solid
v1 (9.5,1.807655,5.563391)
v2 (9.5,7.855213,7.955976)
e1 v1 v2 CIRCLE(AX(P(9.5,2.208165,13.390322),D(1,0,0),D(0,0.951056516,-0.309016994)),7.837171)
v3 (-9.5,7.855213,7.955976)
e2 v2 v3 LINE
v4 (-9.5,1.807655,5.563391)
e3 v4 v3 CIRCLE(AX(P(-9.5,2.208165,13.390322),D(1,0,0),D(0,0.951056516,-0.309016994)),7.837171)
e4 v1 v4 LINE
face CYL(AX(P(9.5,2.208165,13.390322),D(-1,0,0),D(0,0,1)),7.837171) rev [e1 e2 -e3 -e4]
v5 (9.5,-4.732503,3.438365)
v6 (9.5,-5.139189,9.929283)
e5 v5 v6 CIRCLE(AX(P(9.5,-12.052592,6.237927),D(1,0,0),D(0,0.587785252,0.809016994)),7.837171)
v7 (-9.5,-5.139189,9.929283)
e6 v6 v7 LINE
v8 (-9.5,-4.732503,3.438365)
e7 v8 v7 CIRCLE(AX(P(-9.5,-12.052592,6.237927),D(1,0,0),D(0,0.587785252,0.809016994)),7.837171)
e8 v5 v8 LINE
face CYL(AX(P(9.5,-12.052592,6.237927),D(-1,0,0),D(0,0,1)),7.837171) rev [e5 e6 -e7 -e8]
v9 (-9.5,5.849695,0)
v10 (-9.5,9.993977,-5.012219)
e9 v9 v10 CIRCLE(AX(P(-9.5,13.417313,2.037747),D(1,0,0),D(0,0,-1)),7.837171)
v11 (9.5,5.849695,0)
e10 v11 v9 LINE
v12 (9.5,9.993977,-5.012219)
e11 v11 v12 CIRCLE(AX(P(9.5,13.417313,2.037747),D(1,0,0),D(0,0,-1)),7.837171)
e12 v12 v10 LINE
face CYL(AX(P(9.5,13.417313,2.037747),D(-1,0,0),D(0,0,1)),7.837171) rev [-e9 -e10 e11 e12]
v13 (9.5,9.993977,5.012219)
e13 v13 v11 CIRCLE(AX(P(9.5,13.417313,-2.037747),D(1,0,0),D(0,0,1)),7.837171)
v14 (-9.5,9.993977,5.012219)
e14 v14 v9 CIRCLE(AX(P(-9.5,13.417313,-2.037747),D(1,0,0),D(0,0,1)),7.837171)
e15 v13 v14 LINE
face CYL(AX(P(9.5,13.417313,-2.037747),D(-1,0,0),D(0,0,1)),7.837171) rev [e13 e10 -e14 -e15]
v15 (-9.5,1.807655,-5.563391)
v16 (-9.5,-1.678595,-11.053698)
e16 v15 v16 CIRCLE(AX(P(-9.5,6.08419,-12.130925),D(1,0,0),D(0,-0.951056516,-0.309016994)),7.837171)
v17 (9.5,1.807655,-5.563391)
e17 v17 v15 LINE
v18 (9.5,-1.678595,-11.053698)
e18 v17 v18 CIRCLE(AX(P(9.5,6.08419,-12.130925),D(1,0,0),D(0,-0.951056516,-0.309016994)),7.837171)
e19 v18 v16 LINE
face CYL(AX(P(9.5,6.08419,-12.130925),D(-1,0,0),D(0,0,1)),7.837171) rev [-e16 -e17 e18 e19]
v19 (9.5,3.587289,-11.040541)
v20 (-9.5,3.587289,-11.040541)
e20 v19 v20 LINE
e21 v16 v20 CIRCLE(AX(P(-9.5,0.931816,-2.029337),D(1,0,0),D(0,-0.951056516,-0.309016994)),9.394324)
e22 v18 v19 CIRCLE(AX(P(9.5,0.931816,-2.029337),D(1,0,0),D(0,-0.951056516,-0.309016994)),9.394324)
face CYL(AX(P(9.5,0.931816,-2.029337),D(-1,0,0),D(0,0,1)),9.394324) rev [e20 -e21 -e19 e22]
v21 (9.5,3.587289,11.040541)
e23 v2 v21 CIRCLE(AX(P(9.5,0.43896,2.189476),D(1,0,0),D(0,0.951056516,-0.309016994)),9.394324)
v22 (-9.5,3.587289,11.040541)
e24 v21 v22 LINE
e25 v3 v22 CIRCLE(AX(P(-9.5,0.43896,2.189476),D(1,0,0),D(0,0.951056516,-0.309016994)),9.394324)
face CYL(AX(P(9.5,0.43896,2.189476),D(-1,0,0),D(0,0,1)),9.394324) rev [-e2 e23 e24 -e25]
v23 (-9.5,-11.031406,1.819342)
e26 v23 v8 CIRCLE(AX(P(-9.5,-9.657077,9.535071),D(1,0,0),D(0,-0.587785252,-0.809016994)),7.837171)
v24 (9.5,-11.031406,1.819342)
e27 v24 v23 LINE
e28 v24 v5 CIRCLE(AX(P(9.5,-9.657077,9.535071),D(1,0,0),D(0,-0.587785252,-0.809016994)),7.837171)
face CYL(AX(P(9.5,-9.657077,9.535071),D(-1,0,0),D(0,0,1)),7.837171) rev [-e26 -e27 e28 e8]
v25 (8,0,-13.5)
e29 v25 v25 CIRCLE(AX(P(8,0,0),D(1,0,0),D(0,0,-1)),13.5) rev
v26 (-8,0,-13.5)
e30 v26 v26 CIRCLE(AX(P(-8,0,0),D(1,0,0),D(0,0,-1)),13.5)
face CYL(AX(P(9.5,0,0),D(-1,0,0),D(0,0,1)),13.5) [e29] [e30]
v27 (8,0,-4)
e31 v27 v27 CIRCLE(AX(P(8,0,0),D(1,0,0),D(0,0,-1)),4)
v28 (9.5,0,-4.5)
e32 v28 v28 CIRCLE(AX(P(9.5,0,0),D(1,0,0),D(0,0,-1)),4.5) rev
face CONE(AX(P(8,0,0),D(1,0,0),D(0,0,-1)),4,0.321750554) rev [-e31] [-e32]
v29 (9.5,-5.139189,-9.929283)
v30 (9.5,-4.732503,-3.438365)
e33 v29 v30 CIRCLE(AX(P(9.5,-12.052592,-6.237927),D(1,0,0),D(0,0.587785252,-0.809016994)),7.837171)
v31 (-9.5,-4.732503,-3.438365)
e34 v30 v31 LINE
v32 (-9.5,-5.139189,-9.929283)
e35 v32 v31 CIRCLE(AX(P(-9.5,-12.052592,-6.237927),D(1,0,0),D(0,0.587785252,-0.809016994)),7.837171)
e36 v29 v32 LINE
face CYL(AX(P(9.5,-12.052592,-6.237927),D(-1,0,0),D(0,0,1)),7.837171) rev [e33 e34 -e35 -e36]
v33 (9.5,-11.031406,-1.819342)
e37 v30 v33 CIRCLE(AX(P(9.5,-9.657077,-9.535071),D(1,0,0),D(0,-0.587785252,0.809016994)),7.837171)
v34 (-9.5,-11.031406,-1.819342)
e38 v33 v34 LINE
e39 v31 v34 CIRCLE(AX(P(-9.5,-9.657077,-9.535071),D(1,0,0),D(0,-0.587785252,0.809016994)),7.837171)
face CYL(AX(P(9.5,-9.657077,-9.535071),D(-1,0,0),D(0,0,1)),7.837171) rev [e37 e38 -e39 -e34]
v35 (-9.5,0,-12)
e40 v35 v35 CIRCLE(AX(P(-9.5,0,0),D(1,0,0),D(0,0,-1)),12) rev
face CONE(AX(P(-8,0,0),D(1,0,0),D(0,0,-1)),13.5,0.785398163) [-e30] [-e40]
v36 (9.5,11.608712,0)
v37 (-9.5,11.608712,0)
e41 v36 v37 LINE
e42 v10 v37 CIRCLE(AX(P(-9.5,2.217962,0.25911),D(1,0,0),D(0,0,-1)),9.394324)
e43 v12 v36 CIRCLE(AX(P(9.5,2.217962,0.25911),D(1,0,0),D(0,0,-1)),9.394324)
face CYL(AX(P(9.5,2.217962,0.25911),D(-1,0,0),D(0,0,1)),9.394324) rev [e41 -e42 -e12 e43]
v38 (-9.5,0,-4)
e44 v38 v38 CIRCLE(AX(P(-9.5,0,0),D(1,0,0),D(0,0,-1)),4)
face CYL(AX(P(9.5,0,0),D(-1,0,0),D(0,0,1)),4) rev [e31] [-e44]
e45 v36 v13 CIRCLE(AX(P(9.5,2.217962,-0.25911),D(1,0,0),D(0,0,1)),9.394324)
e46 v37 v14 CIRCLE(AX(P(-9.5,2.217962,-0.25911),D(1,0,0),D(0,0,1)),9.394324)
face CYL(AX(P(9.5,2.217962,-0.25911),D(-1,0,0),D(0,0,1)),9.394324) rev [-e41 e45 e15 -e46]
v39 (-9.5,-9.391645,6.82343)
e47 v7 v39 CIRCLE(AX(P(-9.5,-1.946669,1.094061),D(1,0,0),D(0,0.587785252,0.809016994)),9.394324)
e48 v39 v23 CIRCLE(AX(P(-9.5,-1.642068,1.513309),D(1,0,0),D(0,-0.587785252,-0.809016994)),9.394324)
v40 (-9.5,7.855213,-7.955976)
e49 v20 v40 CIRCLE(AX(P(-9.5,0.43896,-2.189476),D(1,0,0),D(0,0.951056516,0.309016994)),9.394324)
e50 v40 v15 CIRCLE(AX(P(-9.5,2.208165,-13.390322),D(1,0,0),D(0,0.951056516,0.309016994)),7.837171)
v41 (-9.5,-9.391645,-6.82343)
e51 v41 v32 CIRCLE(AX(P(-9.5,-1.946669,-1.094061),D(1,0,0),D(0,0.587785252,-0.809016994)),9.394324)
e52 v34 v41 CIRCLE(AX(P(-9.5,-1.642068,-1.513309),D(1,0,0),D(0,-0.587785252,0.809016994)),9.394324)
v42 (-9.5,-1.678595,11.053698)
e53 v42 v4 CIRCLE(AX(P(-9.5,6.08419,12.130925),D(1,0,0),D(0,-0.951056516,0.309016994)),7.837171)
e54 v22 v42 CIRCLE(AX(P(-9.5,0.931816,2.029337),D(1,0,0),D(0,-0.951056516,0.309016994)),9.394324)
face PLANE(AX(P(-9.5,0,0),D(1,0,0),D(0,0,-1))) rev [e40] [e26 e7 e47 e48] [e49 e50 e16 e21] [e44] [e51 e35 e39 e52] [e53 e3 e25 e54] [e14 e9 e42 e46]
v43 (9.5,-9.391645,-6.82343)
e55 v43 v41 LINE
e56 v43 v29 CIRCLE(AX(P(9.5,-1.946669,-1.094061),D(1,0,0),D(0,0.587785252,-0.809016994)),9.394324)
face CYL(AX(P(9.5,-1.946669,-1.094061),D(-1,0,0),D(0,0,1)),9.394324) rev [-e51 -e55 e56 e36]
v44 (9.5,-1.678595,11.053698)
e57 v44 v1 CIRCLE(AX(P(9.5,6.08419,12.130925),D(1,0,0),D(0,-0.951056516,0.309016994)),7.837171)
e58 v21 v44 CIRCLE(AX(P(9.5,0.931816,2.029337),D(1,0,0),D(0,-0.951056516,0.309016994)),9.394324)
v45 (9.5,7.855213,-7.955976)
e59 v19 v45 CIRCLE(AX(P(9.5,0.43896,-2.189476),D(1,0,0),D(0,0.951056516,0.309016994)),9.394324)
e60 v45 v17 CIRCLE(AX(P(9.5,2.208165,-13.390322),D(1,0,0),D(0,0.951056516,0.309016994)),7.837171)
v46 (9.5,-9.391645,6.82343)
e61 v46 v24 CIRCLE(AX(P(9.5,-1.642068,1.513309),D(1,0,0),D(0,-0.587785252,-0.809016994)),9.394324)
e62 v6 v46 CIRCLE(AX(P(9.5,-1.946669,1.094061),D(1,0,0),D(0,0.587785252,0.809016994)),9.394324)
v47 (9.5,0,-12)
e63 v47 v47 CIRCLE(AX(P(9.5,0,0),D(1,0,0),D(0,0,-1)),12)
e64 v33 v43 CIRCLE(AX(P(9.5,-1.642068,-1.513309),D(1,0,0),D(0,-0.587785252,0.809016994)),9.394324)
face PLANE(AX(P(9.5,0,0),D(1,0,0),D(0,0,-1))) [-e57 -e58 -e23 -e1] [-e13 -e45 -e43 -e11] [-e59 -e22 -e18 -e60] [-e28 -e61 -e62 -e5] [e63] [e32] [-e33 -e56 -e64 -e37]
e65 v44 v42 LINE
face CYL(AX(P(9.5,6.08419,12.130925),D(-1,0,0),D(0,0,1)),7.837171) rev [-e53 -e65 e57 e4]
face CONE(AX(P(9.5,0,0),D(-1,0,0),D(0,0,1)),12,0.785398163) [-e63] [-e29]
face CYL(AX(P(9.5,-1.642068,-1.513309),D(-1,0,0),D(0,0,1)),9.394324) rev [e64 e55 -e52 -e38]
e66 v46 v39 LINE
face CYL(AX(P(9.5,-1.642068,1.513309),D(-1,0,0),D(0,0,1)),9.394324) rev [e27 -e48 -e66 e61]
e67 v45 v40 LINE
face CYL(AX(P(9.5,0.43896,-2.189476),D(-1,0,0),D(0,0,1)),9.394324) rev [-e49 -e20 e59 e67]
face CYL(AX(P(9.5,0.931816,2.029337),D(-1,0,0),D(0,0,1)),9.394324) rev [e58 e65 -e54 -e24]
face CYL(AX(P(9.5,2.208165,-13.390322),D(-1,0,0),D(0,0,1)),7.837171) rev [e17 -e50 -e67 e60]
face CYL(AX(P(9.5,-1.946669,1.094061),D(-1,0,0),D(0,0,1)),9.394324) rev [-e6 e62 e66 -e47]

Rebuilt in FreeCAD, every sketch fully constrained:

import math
import FreeCAD as App
import Part
import Sketcher
Q = App.Units.Quantity


def edges_at(feature, points):
    """Names of the edges that pass closest to the given points."""
    edges = feature.Shape.Edges
    near = lambda p: min(range(len(edges)), key=lambda i: edges[i].distToShape(Part.Vertex(*p))[0])
    return sorted({f"Edge{near(p) + 1}" for p in points})

doc = App.newDocument("Part")
params = doc.addObject("Spreadsheet::Sheet", "Params")
for row, (alias, value) in enumerate([
    ("sketch1_diameter", "27 mm"),
    ("sketch1_diameter2", "8 mm"),
    ("pad1_length", "19 mm"),
    ("pocket1_length", "44.649736 mm"),
    ("chamfer_size", "1.5 mm"),
    ("chamfer2_size", "0.5 mm"),
    ("chamfer2_size2", "1.5 mm"),
], start=1):
    params.set(f"A{row}", alias)
    params.set(f"B{row}", "=" + value)
    params.setAlias(f"B{row}", alias)

body = doc.addObject("PartDesign::Body", "Body")

sketch1 = doc.addObject("Sketcher::SketchObject", "Sketch")
body.addObject(sketch1)
sketch1.AttachmentSupport = (doc.YZ_Plane, [""])
sketch1.MapMode = "FlatFace"
sketch1.addGeometry([
    Part.Circle(App.Vector(0, 0, 0), App.Vector(0, 0, 1), 13.5),
    Part.Circle(App.Vector(0, 0, 0), App.Vector(0, 0, 1), 4),
], False)
sketch1.addConstraint([
    Sketcher.Constraint("Coincident", 0, 3, -1, 1),
    Sketcher.Constraint("Coincident", 1, 3, -1, 1),
    Sketcher.Constraint("Diameter", 0, Q("27 mm")),
    Sketcher.Constraint("Diameter", 1, Q("8 mm")),
])
sketch1.setExpression("Constraints[2]", "Params.sketch1_diameter")
sketch1.setExpression("Constraints[3]", "Params.sketch1_diameter2")
pad1 = doc.addObject("PartDesign::Pad", "Pad")
body.addObject(pad1)
pad1.Profile = sketch1
pad1.setExpression("Length", "Params.pad1_length")
pad1.Midplane = True

sketch2 = doc.addObject("Sketcher::SketchObject", "Sketch001")
body.addObject(sketch2)
sketch2.AttachmentSupport = (doc.YZ_Plane, [""])
sketch2.MapMode = "FlatFace"
sketch2.addGeometry([
    Part.ArcOfCircle(Part.Circle(App.Vector(13.417313, -2.037747, 0), App.Vector(0, 0, 1), 7.837171), math.radians(115.900372), math.radians(164.929315)),
    Part.ArcOfCircle(Part.Circle(App.Vector(13.417313, 2.037747, 0), App.Vector(0, 0, 1), 7.837171), math.radians(-164.929315), math.radians(-115.900372)),
    Part.ArcOfCircle(Part.Circle(App.Vector(2.217962, 0.25911, 0), App.Vector(0, 0, 1), 9.394324), math.radians(-34.133185), math.radians(-1.580505)),
    Part.ArcOfCircle(Part.Circle(App.Vector(2.217962, -0.25911, 0), App.Vector(0, 0, 1), 9.394324), math.radians(1.580505), math.radians(34.133185)),
], False)
sketch2.addConstraint([
    Sketcher.Constraint("Coincident", 0, 2, 1, 1),
    Sketcher.Constraint("Coincident", 1, 2, 2, 1),
    Sketcher.Constraint("Coincident", 2, 2, 3, 1),
    Sketcher.Constraint("Coincident", 3, 2, 0, 1),
    Sketcher.Constraint("Equal", 0, 1),
    Sketcher.Constraint("Equal", 2, 3),
    Sketcher.Constraint("Symmetric", 0, 3, 1, 3, -1),
    Sketcher.Constraint("Symmetric", 2, 3, 3, 3, -1),
    Sketcher.Constraint("Radius", 0, Q("7.837171 mm")),
    Sketcher.Constraint("Radius", 2, Q("9.394324 mm")),
    Sketcher.Constraint("DistanceX", 2, 2, 1, 3, Q("1.808602 mm")),
    Sketcher.Constraint("DistanceX", -1, 1, 2, 3, Q("2.217962 mm")),
    Sketcher.Constraint("DistanceY", -1, 1, 2, 3, Q("0.25911 mm")),
    Sketcher.Constraint("DistanceY", 1, 2, -1, 1, Q("5.012219 mm")),
])
pocket1 = doc.addObject("PartDesign::Pocket", "Pocket")
body.addObject(pocket1)
pocket1.Profile = sketch2
pocket1.setExpression("Length", "Params.pocket1_length")
pocket1.Midplane = True
doc.recompute()

polarpattern = doc.addObject("PartDesign::PolarPattern", "PolarPattern")
body.addObject(polarpattern)
polarpattern.Originals = [pocket1]
polarpattern.Axis = (doc.X_Axis, [""])
polarpattern.Angle = 360
polarpattern.Occurrences = 5
body.Tip = polarpattern
doc.recompute()

chamfer = doc.addObject("PartDesign::Chamfer", "Chamfer")
body.addObject(chamfer)
chamfer.Base = (polarpattern, edges_at(polarpattern, [(-9.5, 0, 13.5), (9.5, 0, 13.5)]))
chamfer.setExpression("Size", "Params.chamfer_size")
doc.recompute()

chamfer2 = doc.addObject("PartDesign::Chamfer", "Chamfer001")
body.addObject(chamfer2)
chamfer2.Base = (chamfer, edges_at(chamfer, [(9.5, 0, 4)]))
chamfer2.ChamferType = "Two distances"
chamfer2.setExpression("Size", "Params.chamfer2_size")
chamfer2.setExpression("Size2", "Params.chamfer2_size2")

doc.recompute()
